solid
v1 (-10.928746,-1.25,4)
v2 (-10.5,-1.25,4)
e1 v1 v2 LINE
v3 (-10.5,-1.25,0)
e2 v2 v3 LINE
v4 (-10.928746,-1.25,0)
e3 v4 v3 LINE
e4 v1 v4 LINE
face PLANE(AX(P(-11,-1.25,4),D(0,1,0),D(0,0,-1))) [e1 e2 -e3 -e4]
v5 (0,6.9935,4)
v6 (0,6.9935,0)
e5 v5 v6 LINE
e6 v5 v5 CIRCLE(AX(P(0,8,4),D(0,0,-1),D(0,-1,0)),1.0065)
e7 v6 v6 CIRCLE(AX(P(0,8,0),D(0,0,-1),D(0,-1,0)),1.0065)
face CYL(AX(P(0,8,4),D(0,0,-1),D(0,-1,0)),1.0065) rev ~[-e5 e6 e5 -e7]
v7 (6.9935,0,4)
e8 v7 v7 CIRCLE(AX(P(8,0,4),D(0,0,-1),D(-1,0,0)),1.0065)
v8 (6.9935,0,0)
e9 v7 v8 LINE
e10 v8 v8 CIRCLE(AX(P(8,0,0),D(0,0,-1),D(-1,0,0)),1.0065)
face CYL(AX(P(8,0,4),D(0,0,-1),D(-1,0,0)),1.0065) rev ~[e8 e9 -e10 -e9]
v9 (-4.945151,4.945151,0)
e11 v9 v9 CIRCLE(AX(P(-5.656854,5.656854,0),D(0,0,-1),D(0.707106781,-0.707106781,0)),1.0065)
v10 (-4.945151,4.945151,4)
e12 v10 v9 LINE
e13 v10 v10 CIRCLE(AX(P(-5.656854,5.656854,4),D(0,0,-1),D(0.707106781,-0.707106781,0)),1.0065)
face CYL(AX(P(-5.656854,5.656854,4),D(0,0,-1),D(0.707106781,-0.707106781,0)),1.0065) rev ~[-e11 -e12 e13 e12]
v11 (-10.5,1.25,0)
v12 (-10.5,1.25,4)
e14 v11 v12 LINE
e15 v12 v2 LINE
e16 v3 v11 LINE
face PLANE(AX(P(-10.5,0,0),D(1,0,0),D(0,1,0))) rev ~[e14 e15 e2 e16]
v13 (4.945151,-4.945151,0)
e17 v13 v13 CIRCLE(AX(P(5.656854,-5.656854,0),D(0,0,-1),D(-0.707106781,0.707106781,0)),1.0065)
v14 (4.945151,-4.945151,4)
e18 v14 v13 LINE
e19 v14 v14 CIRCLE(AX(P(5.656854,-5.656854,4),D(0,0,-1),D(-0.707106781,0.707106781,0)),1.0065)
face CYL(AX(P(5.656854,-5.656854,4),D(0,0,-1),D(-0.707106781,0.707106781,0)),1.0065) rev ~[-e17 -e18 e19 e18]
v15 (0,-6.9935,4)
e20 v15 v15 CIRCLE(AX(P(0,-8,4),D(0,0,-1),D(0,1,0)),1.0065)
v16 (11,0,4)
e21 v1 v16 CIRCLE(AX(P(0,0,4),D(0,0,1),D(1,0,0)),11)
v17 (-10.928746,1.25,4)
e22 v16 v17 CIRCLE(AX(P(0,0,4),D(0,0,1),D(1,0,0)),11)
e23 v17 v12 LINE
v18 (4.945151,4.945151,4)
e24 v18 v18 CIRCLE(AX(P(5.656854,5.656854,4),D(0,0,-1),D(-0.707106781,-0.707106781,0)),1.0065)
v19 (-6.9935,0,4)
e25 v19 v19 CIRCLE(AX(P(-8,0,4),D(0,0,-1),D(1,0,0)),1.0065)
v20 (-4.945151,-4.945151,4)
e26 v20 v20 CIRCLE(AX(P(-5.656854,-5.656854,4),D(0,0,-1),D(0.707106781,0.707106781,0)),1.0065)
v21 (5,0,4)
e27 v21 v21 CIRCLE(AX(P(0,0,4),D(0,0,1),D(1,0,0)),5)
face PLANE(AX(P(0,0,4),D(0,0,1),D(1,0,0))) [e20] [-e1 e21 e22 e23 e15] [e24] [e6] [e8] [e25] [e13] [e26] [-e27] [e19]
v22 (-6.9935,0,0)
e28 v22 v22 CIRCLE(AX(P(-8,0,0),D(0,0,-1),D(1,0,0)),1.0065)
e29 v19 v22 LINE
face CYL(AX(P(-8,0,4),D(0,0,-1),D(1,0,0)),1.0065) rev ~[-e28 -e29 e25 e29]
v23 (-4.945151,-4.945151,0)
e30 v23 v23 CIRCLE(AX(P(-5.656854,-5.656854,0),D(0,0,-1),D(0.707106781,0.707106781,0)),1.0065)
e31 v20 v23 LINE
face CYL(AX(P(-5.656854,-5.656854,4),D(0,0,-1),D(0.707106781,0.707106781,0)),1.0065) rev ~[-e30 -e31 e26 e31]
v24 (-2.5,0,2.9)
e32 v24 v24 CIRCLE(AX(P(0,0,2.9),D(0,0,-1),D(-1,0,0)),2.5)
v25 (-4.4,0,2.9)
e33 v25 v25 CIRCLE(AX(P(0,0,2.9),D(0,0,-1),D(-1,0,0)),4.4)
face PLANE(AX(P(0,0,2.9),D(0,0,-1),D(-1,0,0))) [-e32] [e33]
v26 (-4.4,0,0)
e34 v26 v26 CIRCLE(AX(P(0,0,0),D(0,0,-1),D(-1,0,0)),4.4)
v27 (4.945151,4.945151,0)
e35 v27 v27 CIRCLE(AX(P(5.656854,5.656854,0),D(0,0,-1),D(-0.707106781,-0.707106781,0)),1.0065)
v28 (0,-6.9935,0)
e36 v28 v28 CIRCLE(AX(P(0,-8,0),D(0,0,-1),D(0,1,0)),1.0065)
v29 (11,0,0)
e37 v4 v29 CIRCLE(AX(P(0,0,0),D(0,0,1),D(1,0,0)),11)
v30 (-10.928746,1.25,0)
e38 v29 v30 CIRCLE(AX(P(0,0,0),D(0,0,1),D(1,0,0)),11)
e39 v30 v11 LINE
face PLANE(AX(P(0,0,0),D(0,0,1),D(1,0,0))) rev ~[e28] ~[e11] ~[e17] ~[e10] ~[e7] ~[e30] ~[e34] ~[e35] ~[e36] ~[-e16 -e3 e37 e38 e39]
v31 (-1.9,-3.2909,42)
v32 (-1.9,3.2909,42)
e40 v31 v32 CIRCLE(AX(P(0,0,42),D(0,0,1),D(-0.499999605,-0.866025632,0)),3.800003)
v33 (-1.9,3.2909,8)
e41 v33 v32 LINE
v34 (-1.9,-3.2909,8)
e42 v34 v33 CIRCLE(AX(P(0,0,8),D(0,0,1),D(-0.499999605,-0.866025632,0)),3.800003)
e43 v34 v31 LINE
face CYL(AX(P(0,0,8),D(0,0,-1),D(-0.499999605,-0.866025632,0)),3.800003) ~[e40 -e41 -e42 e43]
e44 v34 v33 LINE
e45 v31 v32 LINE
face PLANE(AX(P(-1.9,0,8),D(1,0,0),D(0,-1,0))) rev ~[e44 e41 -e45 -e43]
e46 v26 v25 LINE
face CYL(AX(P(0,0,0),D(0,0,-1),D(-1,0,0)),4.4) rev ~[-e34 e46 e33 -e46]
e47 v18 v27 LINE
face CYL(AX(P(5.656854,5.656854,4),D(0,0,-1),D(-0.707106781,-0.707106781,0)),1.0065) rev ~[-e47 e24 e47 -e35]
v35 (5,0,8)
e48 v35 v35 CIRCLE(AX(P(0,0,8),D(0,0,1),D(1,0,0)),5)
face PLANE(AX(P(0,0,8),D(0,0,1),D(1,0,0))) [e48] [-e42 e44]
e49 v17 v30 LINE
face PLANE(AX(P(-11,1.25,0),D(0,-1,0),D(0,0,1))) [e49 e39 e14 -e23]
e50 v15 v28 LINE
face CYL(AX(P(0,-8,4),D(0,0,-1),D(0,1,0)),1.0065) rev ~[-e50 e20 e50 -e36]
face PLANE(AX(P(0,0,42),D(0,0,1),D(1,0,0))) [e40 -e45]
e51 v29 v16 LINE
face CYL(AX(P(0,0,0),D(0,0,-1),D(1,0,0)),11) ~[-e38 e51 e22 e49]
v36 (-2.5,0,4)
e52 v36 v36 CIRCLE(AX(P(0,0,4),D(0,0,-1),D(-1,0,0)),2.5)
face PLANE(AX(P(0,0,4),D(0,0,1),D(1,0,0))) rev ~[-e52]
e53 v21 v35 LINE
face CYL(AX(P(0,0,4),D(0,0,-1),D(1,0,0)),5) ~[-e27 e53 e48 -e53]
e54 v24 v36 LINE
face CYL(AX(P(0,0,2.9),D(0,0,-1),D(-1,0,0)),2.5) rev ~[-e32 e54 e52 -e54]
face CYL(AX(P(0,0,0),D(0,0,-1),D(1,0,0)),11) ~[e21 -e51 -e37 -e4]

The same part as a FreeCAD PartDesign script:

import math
import FreeCAD as App
import Part
import Sketcher
from FreeCAD import Vector
Q = App.Units.Quantity

doc = App.newDocument("Part")
body = doc.addObject("PartDesign::Body", "Body")

sketch1 = body.newObject("Sketcher::SketchObject", "Sketch")
sketch1.AttachmentSupport = (doc.getObject("XY_Plane"), [""])
sketch1.MapMode = "FlatFace"
sketch1.addGeometry(Part.Circle(Vector(0, 0, 0), Vector(0, 0, 1), 11), False)
sketch1.addConstraint([
    Sketcher.Constraint("Coincident", 0, 3, -1, 1),
    Sketcher.Constraint("Diameter", 0, Q("22 mm")),
])
pad1 = body.newObject("PartDesign::Pad", "Pad")
pad1.Profile = sketch1
pad1.Length = 4

sketch2 = body.newObject("Sketcher::SketchObject", "Sketch001")
sketch2.AttachmentSupport = (doc.getObject("XY_Plane"), [""])
sketch2.MapMode = "FlatFace"
sketch2.AttachmentOffset = App.Placement(Vector(0, 0, 4), App.Rotation())
sketch2.addGeometry(Part.Circle(Vector(0, 8, 0), Vector(0, 0, 1), 1), False)
sketch2.addConstraint([
    Sketcher.Constraint("PointOnObject", 0, 3, -2),
    Sketcher.Constraint("Diameter", 0, Q("2.013 mm")),
    Sketcher.Constraint("DistanceY", -1, 1, 0, 3, Q("8 mm")),
])
doc.recompute()
hole = body.newObject("PartDesign::Hole", "Hole")
hole.Profile = sketch2
hole.ThreadType = "None"
hole.Diameter = 2.013
hole.DepthType = "ThroughAll"
doc.recompute()

polarpattern = body.newObject("PartDesign::PolarPattern", "PolarPattern")
polarpattern.Originals = [hole]
polarpattern.Axis = (doc.getObject("Z_Axis"), [""])
polarpattern.Angle = 360
polarpattern.Occurrences = 8
body.Tip = polarpattern

sketch3 = body.newObject("Sketcher::SketchObject", "Sketch002")
sketch3.AttachmentSupport = (doc.getObject("XY_Plane"), [""])
sketch3.MapMode = "FlatFace"
sketch3.addGeometry(Part.Circle(Vector(0, 0, 0), Vector(0, 0, 1), 4.4), False)
sketch3.addConstraint([
    Sketcher.Constraint("Coincident", 0, 3, -1, 1),
    Sketcher.Constraint("Diameter", 0, Q("8.8 mm")),
])
pocket1 = body.newObject("PartDesign::Pocket", "Pocket")
pocket1.Profile = sketch3
pocket1.Length = 2.9
pocket1.Reversed = True

sketch4 = body.newObject("Sketcher::SketchObject", "Sketch003")
sketch4.AttachmentSupport = (doc.getObject("XY_Plane"), [""])
sketch4.MapMode = "FlatFace"
sketch4.AttachmentOffset = App.Placement(Vector(0, 0, 2.9), App.Rotation())
sketch4.addGeometry(Part.Circle(Vector(0, 0, 0), Vector(0, 0, 1), 2.5), False)
sketch4.addConstraint([
    Sketcher.Constraint("Coincident", 0, 3, -1, 1),
    Sketcher.Constraint("Diameter", 0, Q("5 mm")),
])
pocket2 = body.newObject("PartDesign::Pocket", "Pocket001")
pocket2.Profile = sketch4
pocket2.Length = 2.6
pocket2.Reversed = True

sketch5 = body.newObject("Sketcher::SketchObject", "Sketch004")
sketch5.AttachmentSupport = (doc.getObject("XY_Plane"), [""])
sketch5.MapMode = "FlatFace"
sketch5.AttachmentOffset = App.Placement(Vector(0, 0, 4), App.Rotation())
sketch5.addGeometry(Part.Circle(Vector(0, 0, 0), Vector(0, 0, 1), 5), False)
sketch5.addConstraint([
    Sketcher.Constraint("Coincident", 0, 3, -1, 1),
    Sketcher.Constraint("Diameter", 0, Q("10 mm")),
])
pad2 = body.newObject("PartDesign::Pad", "Pad001")
pad2.Profile = sketch5
pad2.Length = 4

sketch6 = body.newObject("Sketcher::SketchObject", "Sketch005")
sketch6.AttachmentSupport = (doc.getObject("XY_Plane"), [""])
sketch6.MapMode = "FlatFace"
sketch6.AttachmentOffset = App.Placement(Vector(0, 0, 8), App.Rotation())
sketch6.addGeometry([
    Part.LineSegment(Vector(-1.9, 3.3, 0), Vector(-1.9, -3.3, 0)),
    Part.ArcOfCircle(Part.Circle(Vector(0, 0, 0), Vector(0, 0, 1), 3.8), math.radians(-120), math.radians(120)),
], False)
sketch6.addConstraint([
    Sketcher.Constraint("Coincident", 0, 1, 1, 2),
    Sketcher.Constraint("Coincident", 1, 1, 0, 2),
    Sketcher.Constraint("Vertical", 0),
    Sketcher.Constraint("Coincident", 1, 3, -1, 1),
    Sketcher.Constraint("Radius", 1, Q("3.8 mm")),
    Sketcher.Constraint("DistanceX", 0, 1, -1, 1, Q("1.9 mm")),
])
pad3 = body.newObject("PartDesign::Pad", "Pad002")
pad3.Profile = sketch6
pad3.Length = 34

sketch7 = body.newObject("Sketcher::SketchObject", "Sketch006")
sketch7.AttachmentSupport = (doc.getObject("YZ_Plane"), [""])
sketch7.MapMode = "FlatFace"
sketch7.AttachmentOffset = App.Placement(Vector(0, 0, -11), App.Rotation())
sketch7.addGeometry([
    Part.LineSegment(Vector(-1.2, 4, 0), Vector(-1.2, 0, 0)),
    Part.LineSegment(Vector(-1.2, 0, 0), Vector(1.2, 0, 0)),
    Part.LineSegment(Vector(1.2, 0, 0), Vector(1.2, 4, 0)),
    Part.LineSegment(Vector(1.2, 4, 0), Vector(-1.2, 4, 0)),
], False)
sketch7.addConstraint([
    Sketcher.Constraint("Coincident", 0, 2, 1, 1),
    Sketcher.Constraint("Coincident", 1, 2, 2, 1),
    Sketcher.Constraint("Coincident", 2, 2, 3, 1),
    Sketcher.Constraint("Coincident", 3, 2, 0, 1),
    Sketcher.Constraint("Vertical", 0),
    Sketcher.Constraint("Horizontal", 1),
    Sketcher.Constraint("Vertical", 2),
    Sketcher.Constraint("Horizontal", 3),
    Sketcher.Constraint("Symmetric", 0, 2, 1, 2, -1, 1),
    Sketcher.Constraint("DistanceY", 0, 2, 0, 1, Q("4 mm")),
    Sketcher.Constraint("DistanceX", 1, 1, 1, 2, Q("2.5 mm")),
])
pocket3 = body.newObject("PartDesign::Pocket", "Pocket002")
pocket3.Profile = sketch7
pocket3.Length = 0.5
pocket3.Reversed = True

doc.recompute()
